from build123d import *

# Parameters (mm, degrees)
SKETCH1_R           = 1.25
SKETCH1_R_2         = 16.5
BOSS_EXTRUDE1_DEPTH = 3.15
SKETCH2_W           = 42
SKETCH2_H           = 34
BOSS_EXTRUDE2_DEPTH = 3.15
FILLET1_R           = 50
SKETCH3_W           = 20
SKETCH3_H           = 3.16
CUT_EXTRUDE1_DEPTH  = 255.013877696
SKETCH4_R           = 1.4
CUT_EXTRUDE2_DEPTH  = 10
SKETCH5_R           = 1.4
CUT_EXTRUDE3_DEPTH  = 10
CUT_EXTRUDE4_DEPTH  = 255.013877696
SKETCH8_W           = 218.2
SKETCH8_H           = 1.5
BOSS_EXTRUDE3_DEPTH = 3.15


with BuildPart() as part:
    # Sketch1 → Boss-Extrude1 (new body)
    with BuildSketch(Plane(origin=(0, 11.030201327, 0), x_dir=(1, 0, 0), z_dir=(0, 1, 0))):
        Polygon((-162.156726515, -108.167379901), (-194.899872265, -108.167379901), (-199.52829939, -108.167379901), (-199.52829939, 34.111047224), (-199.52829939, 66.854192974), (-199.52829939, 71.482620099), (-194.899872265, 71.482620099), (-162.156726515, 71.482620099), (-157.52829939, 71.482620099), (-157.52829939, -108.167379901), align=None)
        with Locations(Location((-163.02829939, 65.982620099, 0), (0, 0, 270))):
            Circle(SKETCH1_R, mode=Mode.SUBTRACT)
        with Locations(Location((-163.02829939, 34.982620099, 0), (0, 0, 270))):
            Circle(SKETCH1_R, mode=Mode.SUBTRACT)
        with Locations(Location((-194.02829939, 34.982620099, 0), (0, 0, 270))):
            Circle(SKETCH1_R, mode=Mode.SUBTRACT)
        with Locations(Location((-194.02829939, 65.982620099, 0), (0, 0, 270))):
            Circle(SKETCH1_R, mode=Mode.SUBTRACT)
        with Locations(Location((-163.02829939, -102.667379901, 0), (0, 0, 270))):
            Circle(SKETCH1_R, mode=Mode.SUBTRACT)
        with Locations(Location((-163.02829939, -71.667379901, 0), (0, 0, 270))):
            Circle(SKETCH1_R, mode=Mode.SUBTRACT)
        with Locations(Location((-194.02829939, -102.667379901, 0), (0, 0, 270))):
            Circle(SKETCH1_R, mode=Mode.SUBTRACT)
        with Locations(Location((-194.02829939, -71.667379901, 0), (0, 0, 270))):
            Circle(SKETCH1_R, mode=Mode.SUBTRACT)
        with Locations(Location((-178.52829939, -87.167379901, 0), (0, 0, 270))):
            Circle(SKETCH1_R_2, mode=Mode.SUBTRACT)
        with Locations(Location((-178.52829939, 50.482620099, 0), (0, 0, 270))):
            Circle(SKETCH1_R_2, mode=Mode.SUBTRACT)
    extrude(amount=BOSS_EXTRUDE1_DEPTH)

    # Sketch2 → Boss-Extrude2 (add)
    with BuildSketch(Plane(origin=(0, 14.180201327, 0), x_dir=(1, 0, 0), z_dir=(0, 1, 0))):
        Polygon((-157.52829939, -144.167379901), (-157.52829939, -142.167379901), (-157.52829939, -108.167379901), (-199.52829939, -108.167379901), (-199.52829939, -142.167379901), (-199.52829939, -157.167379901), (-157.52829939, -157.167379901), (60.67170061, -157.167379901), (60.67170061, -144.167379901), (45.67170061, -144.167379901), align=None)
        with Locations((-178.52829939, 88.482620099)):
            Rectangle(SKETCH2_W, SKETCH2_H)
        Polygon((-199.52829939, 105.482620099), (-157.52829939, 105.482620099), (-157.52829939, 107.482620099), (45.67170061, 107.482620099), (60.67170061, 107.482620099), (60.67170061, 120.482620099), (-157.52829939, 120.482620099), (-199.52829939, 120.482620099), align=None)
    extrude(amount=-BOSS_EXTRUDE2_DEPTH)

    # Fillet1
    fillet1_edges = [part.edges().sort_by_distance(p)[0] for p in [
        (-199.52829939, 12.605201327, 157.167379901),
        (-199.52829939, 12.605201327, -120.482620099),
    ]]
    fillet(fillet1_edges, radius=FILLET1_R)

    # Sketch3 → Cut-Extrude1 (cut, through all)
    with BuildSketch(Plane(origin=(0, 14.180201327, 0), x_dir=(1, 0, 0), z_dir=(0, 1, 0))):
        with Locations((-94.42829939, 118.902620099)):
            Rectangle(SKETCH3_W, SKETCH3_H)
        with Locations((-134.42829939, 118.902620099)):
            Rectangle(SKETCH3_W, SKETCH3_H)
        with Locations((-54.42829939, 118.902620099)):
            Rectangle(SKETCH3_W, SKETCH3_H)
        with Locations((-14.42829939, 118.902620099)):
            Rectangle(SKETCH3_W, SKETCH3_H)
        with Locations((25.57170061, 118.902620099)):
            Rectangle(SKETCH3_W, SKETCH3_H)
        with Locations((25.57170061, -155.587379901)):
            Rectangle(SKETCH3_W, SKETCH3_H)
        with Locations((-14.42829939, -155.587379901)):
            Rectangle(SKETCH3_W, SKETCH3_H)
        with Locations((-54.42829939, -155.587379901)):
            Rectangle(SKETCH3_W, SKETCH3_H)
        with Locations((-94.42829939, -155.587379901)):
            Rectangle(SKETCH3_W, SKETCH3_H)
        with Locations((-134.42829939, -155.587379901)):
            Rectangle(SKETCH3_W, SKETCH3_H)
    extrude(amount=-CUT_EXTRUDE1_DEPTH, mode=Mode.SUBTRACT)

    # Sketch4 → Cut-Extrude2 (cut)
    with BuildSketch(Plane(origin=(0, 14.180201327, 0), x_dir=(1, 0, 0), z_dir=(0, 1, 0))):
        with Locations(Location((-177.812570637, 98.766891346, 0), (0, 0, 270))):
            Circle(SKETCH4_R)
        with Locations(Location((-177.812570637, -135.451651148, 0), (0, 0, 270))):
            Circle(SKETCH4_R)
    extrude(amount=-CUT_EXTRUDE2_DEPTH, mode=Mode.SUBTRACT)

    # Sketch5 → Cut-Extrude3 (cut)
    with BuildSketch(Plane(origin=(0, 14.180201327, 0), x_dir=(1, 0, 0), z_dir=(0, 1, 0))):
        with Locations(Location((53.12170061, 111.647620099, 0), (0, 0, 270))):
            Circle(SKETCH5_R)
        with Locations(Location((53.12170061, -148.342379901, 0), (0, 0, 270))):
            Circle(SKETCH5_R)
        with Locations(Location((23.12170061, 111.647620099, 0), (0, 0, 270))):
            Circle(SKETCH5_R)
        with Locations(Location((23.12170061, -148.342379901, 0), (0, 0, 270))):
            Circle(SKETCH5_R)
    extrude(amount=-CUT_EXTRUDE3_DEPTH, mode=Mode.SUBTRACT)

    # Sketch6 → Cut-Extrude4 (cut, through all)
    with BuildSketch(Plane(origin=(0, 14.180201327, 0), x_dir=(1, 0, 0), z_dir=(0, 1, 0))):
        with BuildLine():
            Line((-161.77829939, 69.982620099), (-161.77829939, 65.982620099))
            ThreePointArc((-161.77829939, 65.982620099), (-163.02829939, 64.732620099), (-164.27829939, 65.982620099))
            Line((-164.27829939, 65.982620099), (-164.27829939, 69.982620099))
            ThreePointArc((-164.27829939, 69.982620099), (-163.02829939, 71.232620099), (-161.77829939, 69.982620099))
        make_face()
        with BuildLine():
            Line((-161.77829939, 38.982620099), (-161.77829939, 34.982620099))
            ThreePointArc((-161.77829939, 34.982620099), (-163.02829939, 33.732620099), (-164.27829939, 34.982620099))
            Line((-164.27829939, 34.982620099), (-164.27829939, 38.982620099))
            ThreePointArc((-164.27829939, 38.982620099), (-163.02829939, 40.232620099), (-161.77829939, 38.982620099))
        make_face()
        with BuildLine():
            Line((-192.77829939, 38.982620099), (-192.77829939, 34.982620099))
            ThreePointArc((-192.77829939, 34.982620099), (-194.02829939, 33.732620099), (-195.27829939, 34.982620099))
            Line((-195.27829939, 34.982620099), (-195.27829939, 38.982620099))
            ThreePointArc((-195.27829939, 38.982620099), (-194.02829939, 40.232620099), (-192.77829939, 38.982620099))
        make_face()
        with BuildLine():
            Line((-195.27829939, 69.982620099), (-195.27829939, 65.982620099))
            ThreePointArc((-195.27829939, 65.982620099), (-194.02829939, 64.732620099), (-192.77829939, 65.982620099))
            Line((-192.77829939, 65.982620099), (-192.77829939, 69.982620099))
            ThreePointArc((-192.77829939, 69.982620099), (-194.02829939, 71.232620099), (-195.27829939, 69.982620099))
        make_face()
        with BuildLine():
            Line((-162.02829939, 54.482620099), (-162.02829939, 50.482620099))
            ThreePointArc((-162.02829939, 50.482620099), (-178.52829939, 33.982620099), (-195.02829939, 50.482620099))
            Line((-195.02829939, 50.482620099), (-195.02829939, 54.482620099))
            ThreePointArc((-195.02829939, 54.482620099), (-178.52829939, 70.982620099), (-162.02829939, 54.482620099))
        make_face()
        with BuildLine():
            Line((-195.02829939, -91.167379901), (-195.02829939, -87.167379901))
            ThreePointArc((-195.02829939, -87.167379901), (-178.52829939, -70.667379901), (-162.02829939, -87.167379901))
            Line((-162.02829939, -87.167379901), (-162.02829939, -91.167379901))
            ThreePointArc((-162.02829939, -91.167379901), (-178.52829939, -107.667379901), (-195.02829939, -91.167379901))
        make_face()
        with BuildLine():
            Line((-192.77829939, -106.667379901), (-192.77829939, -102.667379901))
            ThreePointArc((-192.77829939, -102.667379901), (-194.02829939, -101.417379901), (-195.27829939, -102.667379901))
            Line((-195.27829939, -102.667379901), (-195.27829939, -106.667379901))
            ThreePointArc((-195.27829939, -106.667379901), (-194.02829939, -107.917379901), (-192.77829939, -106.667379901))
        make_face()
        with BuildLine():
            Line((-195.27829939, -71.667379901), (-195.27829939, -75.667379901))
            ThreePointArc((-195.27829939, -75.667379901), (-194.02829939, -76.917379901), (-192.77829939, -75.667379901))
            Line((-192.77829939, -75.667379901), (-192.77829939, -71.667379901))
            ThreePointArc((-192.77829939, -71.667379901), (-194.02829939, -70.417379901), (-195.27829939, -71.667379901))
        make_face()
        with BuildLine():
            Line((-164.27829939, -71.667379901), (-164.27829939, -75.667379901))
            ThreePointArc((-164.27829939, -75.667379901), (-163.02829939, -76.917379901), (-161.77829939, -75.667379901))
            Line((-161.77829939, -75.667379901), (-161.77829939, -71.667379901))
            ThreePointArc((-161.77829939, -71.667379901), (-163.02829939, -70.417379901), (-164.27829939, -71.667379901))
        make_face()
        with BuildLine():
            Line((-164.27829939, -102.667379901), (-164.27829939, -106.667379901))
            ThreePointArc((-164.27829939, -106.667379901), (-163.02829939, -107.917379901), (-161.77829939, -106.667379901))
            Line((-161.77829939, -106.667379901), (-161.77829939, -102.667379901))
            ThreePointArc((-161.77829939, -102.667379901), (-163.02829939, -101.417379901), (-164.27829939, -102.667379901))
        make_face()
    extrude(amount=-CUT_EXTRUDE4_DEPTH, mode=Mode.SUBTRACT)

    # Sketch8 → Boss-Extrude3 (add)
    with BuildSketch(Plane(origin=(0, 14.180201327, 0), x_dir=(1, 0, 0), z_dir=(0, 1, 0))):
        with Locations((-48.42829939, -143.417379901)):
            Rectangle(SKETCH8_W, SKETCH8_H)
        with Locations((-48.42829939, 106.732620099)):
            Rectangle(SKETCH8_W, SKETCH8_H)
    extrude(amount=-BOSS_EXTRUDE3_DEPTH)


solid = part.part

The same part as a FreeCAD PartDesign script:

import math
import FreeCAD as App
import Part
import Sketcher
from FreeCAD import Vector


def edges_at(feature, points):
    """Names of the edges that pass closest to the given points."""
    edges = feature.Shape.Edges
    near = lambda p: min(range(len(edges)), key=lambda i: edges[i].distToShape(Part.Vertex(*p))[0])
    return sorted({f"Edge{near(p) + 1}" for p in points})


def add_polygon(sketch, points):
    """Adds a closed chain of lines whose ends are joined by coincident constraints."""
    first, n = sketch.GeometryCount, len(points)
    for a, b in zip(points, points[1:] + points[:1]):
        sketch.addGeometry(Part.LineSegment(App.Vector(*a, 0), App.Vector(*b, 0)), False)
    for i in range(n):
        sketch.addConstraint(Sketcher.Constraint("Coincident", first + i, 2, first + (i + 1) % n, 1))

doc = App.newDocument("Part")
params = doc.addObject("Spreadsheet::Sheet", "Params")
for row, (alias, value) in enumerate([
    ("sketch1_diameter", "33 mm"),
    ("sketch1_diameter2", "2.5 mm"),
    ("sketch1_width", "42 mm"),
    ("sketch1_height", "179.65 mm"),
    ("pad1_length", "3.15 mm"),
    ("sketch2_width", "42 mm"),
    ("sketch2_height", "36 mm"),
    ("sketch2_height2", "49 mm"),
    ("sketch2_width2", "260.2 mm"),
    ("pad2_length", "3.15 mm"),
    ("fillet_radius", "50 mm"),
    ("sketch3_width", "20 mm"),
    ("sketch3_height", "3.16 mm"),
    ("sketch4_diameter", "2.8 mm"),
    ("pocket2_length", "10 mm"),
    ("sketch5_diameter", "2.8 mm"),
    ("pocket3_length", "10 mm"),
    ("sketch6_radius", "16.5 mm"),
    ("sketch6_height", "4 mm"),
    ("sketch6_radius2", "1.25 mm"),
    ("sketch7_width", "218.2 mm"),
    ("sketch7_height", "1.5 mm"),
    ("pad3_length", "3.15 mm"),
], start=1):
    params.set(f"A{row}", alias)
    params.set(f"B{row}", "=" + value)
    params.setAlias(f"B{row}", alias)

body = doc.addObject("PartDesign::Body", "Body")

sketch1 = body.newObject("Sketcher::SketchObject", "Sketch")
sketch1.AttachmentSupport = (doc.getObject("XZ_Plane"), [""])
sketch1.MapMode = "FlatFace"
sketch1.AttachmentOffset = App.Placement(Vector(0, 0, -11.030201), App.Rotation())
add_polygon(sketch1, [(-199.5, 108.2), (-157.5, 108.2), (-157.5, -71.5), (-199.5, -71.5)])
sketch1.addGeometry(Part.Circle(Vector(-163, 102.7, 0), Vector(0, 0, 1), 1.2), False)
sketch1.addGeometry(Part.Circle(Vector(-163, 71.7, 0), Vector(0, 0, 1), 1.2), False)
sketch1.addGeometry(Part.Circle(Vector(-178.5, 87.2, 0), Vector(0, 0, 1), 16.5), False)
sketch1.addGeometry(Part.Circle(Vector(-194, 102.7, 0), Vector(0, 0, 1), 1.2), False)
sketch1.addGeometry(Part.Circle(Vector(-194, 71.7, 0), Vector(0, 0, 1), 1.2), False)
sketch1.addGeometry(Part.Circle(Vector(-163, -35, 0), Vector(0, 0, 1), 1.2), False)
sketch1.addGeometry(Part.Circle(Vector(-163, -66, 0), Vector(0, 0, 1), 1.2), False)
sketch1.addGeometry(Part.Circle(Vector(-178.5, -50.5, 0), Vector(0, 0, 1), 16.5), False)
sketch1.addGeometry(Part.Circle(Vector(-194, -35, 0), Vector(0, 0, 1), 1.2), False)
sketch1.addGeometry(Part.Circle(Vector(-194, -66, 0), Vector(0, 0, 1), 1.2), False)
sketch1.addConstraint(Sketcher.Constraint("Horizontal", 0))
sketch1.addConstraint(Sketcher.Constraint("Vertical", 1))
sketch1.addConstraint(Sketcher.Constraint("Horizontal", 2))
sketch1.addConstraint(Sketcher.Constraint("Vertical", 3))
sketch1.addConstraint(Sketcher.Constraint("Equal", 4, 5))
sketch1.addConstraint(Sketcher.Constraint("Equal", 5, 7))
sketch1.addConstraint(Sketcher.Constraint("Equal", 7, 8))
sketch1.addConstraint(Sketcher.Constraint("Equal", 8, 9))
sketch1.addConstraint(Sketcher.Constraint("Equal", 9, 10))
sketch1.addConstraint(Sketcher.Constraint("Equal", 6, 11))
sketch1.addConstraint(Sketcher.Constraint("Equal", 10, 12))
sketch1.addConstraint(Sketcher.Constraint("Equal", 12, 13))
sketch1.addConstraint(Sketcher.Constraint("Horizontal", 4, 3, 7, 3))
sketch1.addConstraint(Sketcher.Constraint("Horizontal", 5, 3, 8, 3))
sketch1.addConstraint(Sketcher.Constraint("Horizontal", 9, 3, 12, 3))
sketch1.addConstraint(Sketcher.Constraint("Horizontal", 10, 3, 13, 3))
sketch1.addConstraint(Sketcher.Constraint("Vertical", 4, 3, 5, 3))
sketch1.addConstraint(Sketcher.Constraint("Vertical", 7, 3, 8, 3))
sketch1.addConstraint(Sketcher.Constraint("Vertical", 5, 3, 9, 3))
sketch1.addConstraint(Sketcher.Constraint("Vertical", 9, 3, 10, 3))
sketch1.addConstraint(Sketcher.Constraint("Vertical", 6, 3, 11, 3))
sketch1.addConstraint(Sketcher.Constraint("Vertical", 8, 3, 12, 3))
sketch1.addConstraint(Sketcher.Constraint("Vertical", 12, 3, 13, 3))
sketch1.addConstraint(Sketcher.Constraint("Diameter", 6, 33.0))
sketch1.addConstraint(Sketcher.Constraint("Diameter", 4, 2.5))
sketch1.addConstraint(Sketcher.Constraint("DistanceX", 0, 1, 0, 2, 42.0))
sketch1.addConstraint(Sketcher.Constraint("DistanceY", 5, 3, 4, 3, 31.0))
sketch1.addConstraint(Sketcher.Constraint("DistanceX", 7, 3, 4, 3, 31.0))
sketch1.addConstraint(Sketcher.Constraint("DistanceY", 10, 3, 9, 3, 31.0))
sketch1.addConstraint(Sketcher.Constraint("DistanceX", 6, 3, 0, 2, 21.0))
sketch1.addConstraint(Sketcher.Constraint("DistanceY", 6, 3, 0, 2, 21.0))
sketch1.addConstraint(Sketcher.Constraint("DistanceY", 1, 2, 11, 3, 21.0))
sketch1.addConstraint(Sketcher.Constraint("DistanceY", 1, 2, 1, 1, 179.65))
sketch1.addConstraint(Sketcher.Constraint("DistanceX", 6, 3, 4, 3, 15.5))
sketch1.addConstraint(Sketcher.Constraint("DistanceY", 6, 3, 4, 3, 15.5))
sketch1.addConstraint(Sketcher.Constraint("DistanceY", 11, 3, 9, 3, 15.5))
sketch1.addConstraint(Sketcher.Constraint("DistanceX", 4, 3, -1, 1, 163.028299))
sketch1.addConstraint(Sketcher.Constraint("DistanceY", -1, 1, 4, 3, 102.66738))
sketch1.setExpression("Constraints[27]", "Params.sketch1_diameter")
sketch1.setExpression("Constraints[28]", "Params.sketch1_diameter2")
sketch1.setExpression("Constraints[29]", "Params.sketch1_width")
sketch1.setExpression("Constraints[36]", "Params.sketch1_height")
pad1 = body.newObject("PartDesign::Pad", "Pad")
pad1.Profile = sketch1
pad1.setExpression("Length", "Params.pad1_length")
pad1.Reversed = True

sketch2 = body.newObject("Sketcher::SketchObject", "Sketch001")
sketch2.AttachmentSupport = (doc.getObject("XZ_Plane"), [""])
sketch2.MapMode = "FlatFace"
sketch2.AttachmentOffset = App.Placement(Vector(0, 0, -14.180201), App.Rotation())
add_polygon(sketch2, [(-158, 144), (-158, 108), (-200, 108), (-200, 157), (61, 157), (61, 144)])
add_polygon(sketch2, [(-200, -71), (-158, -71), (-158, -107), (61, -107), (61, -120), (-200, -120)])
sketch2.addConstraint(Sketcher.Constraint("Vertical", 0))
sketch2.addConstraint(Sketcher.Constraint("Horizontal", 1))
sketch2.addConstraint(Sketcher.Constraint("Vertical", 2))
sketch2.addConstraint(Sketcher.Constraint("Horizontal", 3))
sketch2.addConstraint(Sketcher.Constraint("Vertical", 4))
sketch2.addConstraint(Sketcher.Constraint("Horizontal", 5))
sketch2.addConstraint(Sketcher.Constraint("Horizontal", 6))
sketch2.addConstraint(Sketcher.Constraint("Vertical", 7))
sketch2.addConstraint(Sketcher.Constraint("Horizontal", 8))
sketch2.addConstraint(Sketcher.Constraint("Vertical", 9))
sketch2.addConstraint(Sketcher.Constraint("Horizontal", 10))
sketch2.addConstraint(Sketcher.Constraint("Vertical", 11))
sketch2.addConstraint(Sketcher.Constraint("Vertical", 5, 2, 6, 2))
sketch2.addConstraint(Sketcher.Constraint("Vertical", 4, 2, 8, 2))
sketch2.addConstraint(Sketcher.Constraint("Vertical", 2, 2, 10, 2))
sketch2.addConstraint(Sketcher.Constraint("Equal", 0, 7))
sketch2.addConstraint(Sketcher.Constraint("Equal", 4, 9))
sketch2.addConstraint(Sketcher.Constraint("DistanceX", 1, 2, 1, 1, 42.0))
sketch2.addConstraint(Sketcher.Constraint("DistanceY", 0, 2, 0, 1, 36.0))
sketch2.addConstraint(Sketcher.Constraint("DistanceY", 2, 1, 2, 2, 49.0))
sketch2.addConstraint(Sketcher.Constraint("DistanceX", 3, 1, 3, 2, 260.2))
sketch2.addConstraint(Sketcher.Constraint("DistanceY", 6, 2, 0, 2, 179.65))
sketch2.addConstraint(Sketcher.Constraint("DistanceX", 0, 2, -1, 1, 157.528299))
sketch2.addConstraint(Sketcher.Constraint("DistanceY", -1, 1, 0, 2, 108.16738))
sketch2.setExpression("Constraints[29]", "Params.sketch2_width")
sketch2.setExpression("Constraints[30]", "Params.sketch2_height")
sketch2.setExpression("Constraints[31]", "Params.sketch2_height2")
sketch2.setExpression("Constraints[32]", "Params.sketch2_width2")
pad2 = body.newObject("PartDesign::Pad", "Pad001")
pad2.Profile = sketch2
pad2.setExpression("Length", "Params.pad2_length")
doc.recompute()

fillet = body.newObject("PartDesign::Fillet", "Fillet")
fillet.Base = (pad2, edges_at(pad2, [(-199.528, 12.605, 157.167), (-199.528, 12.605, -120.483)]))
fillet.setExpression("Radius", "Params.fillet_radius")

sketch3 = body.newObject("Sketcher::SketchObject", "Sketch002")
sketch3.AttachmentSupport = (doc.getObject("XZ_Plane"), [""])
sketch3.MapMode = "FlatFace"
sketch3.AttachmentOffset = App.Placement(Vector(0, 0, -14.180201), App.Rotation())
add_polygon(sketch3, [(-104.4, -120.5), (-104.4, -117.3), (-84.4, -117.3), (-84.4, -120.5)])
add_polygon(sketch3, [(-144.4, -120.5), (-144.4, -117.3), (-124.4, -117.3), (-124.4, -120.5)])
add_polygon(sketch3, [(-64.4, -120.5), (-64.4, -117.3), (-44.4, -117.3), (-44.4, -120.5)])
add_polygon(sketch3, [(-24.4, -120.5), (-24.4, -117.3), (-4.4, -117.3), (-4.4, -120.5)])
add_polygon(sketch3, [(15.6, -120.5), (15.6, -117.3), (35.6, -117.3), (35.6, -120.5)])
add_polygon(sketch3, [(15.6, 154), (15.6, 157.2), (35.6, 157.2), (35.6, 154)])
add_polygon(sketch3, [(-24.4, 154), (-24.4, 157.2), (-4.4, 157.2), (-4.4, 154)])
add_polygon(sketch3, [(-64.4, 154), (-64.4, 157.2), (-44.4, 157.2), (-44.4, 154)])
add_polygon(sketch3, [(-104.4, 154), (-104.4, 157.2), (-84.4, 157.2), (-84.4, 154)])
add_polygon(sketch3, [(-144.4, 154), (-144.4, 157.2), (-124.4, 157.2), (-124.4, 154)])
sketch3.addConstraint(Sketcher.Constraint("Vertical", 0))
sketch3.addConstraint(Sketcher.Constraint("Horizontal", 1))
sketch3.addConstraint(Sketcher.Constraint("Vertical", 2))
sketch3.addConstraint(Sketcher.Constraint("Horizontal", 3))
sketch3.addConstraint(Sketcher.Constraint("Vertical", 4))
sketch3.addConstraint(Sketcher.Constraint("Horizontal", 5))
sketch3.addConstraint(Sketcher.Constraint("Vertical", 6))
sketch3.addConstraint(Sketcher.Constraint("Horizontal", 7))
sketch3.addConstraint(Sketcher.Constraint("Vertical", 8))
sketch3.addConstraint(Sketcher.Constraint("Horizontal", 9))
sketch3.addConstraint(Sketcher.Constraint("Vertical", 10))
sketch3.addConstraint(Sketcher.Constraint("Horizontal", 11))
sketch3.addConstraint(Sketcher.Constraint("Vertical", 12))
sketch3.addConstraint(Sketcher.Constraint("Horizontal", 13))
sketch3.addConstraint(Sketcher.Constraint("Vertical", 14))
sketch3.addConstraint(Sketcher.Constraint("Horizontal", 15))
sketch3.addConstraint(Sketcher.Constraint("Vertical", 16))
sketch3.addConstraint(Sketcher.Constraint("Horizontal", 17))
sketch3.addConstraint(Sketcher.Constraint("Vertical", 18))
sketch3.addConstraint(Sketcher.Constraint("Horizontal", 19))
sketch3.addConstraint(Sketcher.Constraint("Vertical", 20))
sketch3.addConstraint(Sketcher.Constraint("Horizontal", 21))
sketch3.addConstraint(Sketcher.Constraint("Vertical", 22))
sketch3.addConstraint(Sketcher.Constraint("Horizontal", 23))
sketch3.addConstraint(Sketcher.Constraint("Vertical", 24))
sketch3.addConstraint(Sketcher.Constraint("Horizontal", 25))
sketch3.addConstraint(Sketcher.Constraint("Vertical", 26))
sketch3.addConstraint(Sketcher.Constraint("Horizontal", 27))
sketch3.addConstraint(Sketcher.Constraint("Vertical", 28))
sketch3.addConstraint(Sketcher.Constraint("Horizontal", 29))
sketch3.addConstraint(Sketcher.Constraint("Vertical", 30))
sketch3.addConstraint(Sketcher.Constraint("Horizontal", 31))
sketch3.addConstraint(Sketcher.Constraint("Vertical", 32))
sketch3.addConstraint(Sketcher.Constraint("Horizontal", 33))
sketch3.addConstraint(Sketcher.Constraint("Vertical", 34))
sketch3.addConstraint(Sketcher.Constraint("Horizontal", 35))
sketch3.addConstraint(Sketcher.Constraint("Vertical", 36))
sketch3.addConstraint(Sketcher.Constraint("Horizontal", 37))
sketch3.addConstraint(Sketcher.Constraint("Vertical", 38))
sketch3.addConstraint(Sketcher.Constraint("Horizontal", 39))
sketch3.addConstraint(Sketcher.Constraint("Horizontal", 1, 2, 4, 2))
sketch3.addConstraint(Sketcher.Constraint("Horizontal", 3, 2, 6, 2))
sketch3.addConstraint(Sketcher.Constraint("Horizontal", 5, 2, 8, 2))
sketch3.addConstraint(Sketcher.Constraint("Horizontal", 7, 2, 10, 2))
sketch3.addConstraint(Sketcher.Constraint("Horizontal", 9, 2, 12, 2))
sketch3.addConstraint(Sketcher.Constraint("Horizontal", 11, 2, 14, 2))
sketch3.addConstraint(Sketcher.Constraint("Horizontal", 13, 2, 16, 2))
sketch3.addConstraint(Sketcher.Constraint("Horizontal", 15, 2, 18, 2))
sketch3.addConstraint(Sketcher.Constraint("Horizontal", 21, 2, 24, 2))
sketch3.addConstraint(Sketcher.Constraint("Horizontal", 23, 2, 26, 2))
sketch3.addConstraint(Sketcher.Constraint("Horizontal", 25, 2, 28, 2))
sketch3.addConstraint(Sketcher.Constraint("Horizontal", 27, 2, 30, 2))
sketch3.addConstraint(Sketcher.Constraint("Horizontal", 29, 2, 32, 2))
sketch3.addConstraint(Sketcher.Constraint("Horizontal", 31, 2, 34, 2))
sketch3.addConstraint(Sketcher.Constraint("Horizontal", 33, 2, 36, 2))
sketch3.addConstraint(Sketcher.Constraint("Horizontal", 35, 2, 38, 2))
sketch3.addConstraint(Sketcher.Constraint("Vertical", 19, 2, 20, 2))
sketch3.addConstraint(Sketcher.Constraint("Vertical", 18, 2, 21, 2))
sketch3.addConstraint(Sketcher.Constraint("Vertical", 15, 2, 24, 2))
sketch3.addConstraint(Sketcher.Constraint("Vertical", 14, 2, 25, 2))
sketch3.addConstraint(Sketcher.Constraint("Vertical", 11, 2, 28, 2))
sketch3.addConstraint(Sketcher.Constraint("Vertical", 10, 2, 29, 2))
sketch3.addConstraint(Sketcher.Constraint("Vertical", 3, 2, 32, 2))
sketch3.addConstraint(Sketcher.Constraint("Vertical", 2, 2, 33, 2))
sketch3.addConstraint(Sketcher.Constraint("Vertical", 7, 2, 36, 2))
sketch3.addConstraint(Sketcher.Constraint("Vertical", 6, 2, 37, 2))
sketch3.addConstraint(Sketcher.Constraint("Equal", 3, 5))
sketch3.addConstraint(Sketcher.Constraint("Equal", 7, 9))
sketch3.addConstraint(Sketcher.Constraint("Equal", 11, 13))
sketch3.addConstraint(Sketcher.Constraint("Equal", 15, 17))
sketch3.addConstraint(Sketcher.Constraint("Equal", 18, 20))
sketch3.addConstraint(Sketcher.Constraint("DistanceX", 1, 1, 1, 2, 20.0))
sketch3.addConstraint(Sketcher.Constraint("DistanceX", 4, 2, 0, 2, 40.0))
sketch3.addConstraint(Sketcher.Constraint("DistanceX", 1, 2, 8, 2, 20.0))
sketch3.addConstraint(Sketcher.Constraint("DistanceX", 9, 2, 12, 2, 20.0))
sketch3.addConstraint(Sketcher.Constraint("DistanceX", 13, 2, 16, 2, 20.0))
sketch3.addConstraint(Sketcher.Constraint("DistanceY", 0, 1, 0, 2, 3.16))
sketch3.addConstraint(Sketcher.Constraint("DistanceY", 16, 2, 20, 2, 274.49))
sketch3.addConstraint(Sketcher.Constraint("DistanceX", 0, 2, -1, 1, 104.428299))
sketch3.addConstraint(Sketcher.Constraint("DistanceY", 0, 2, -1, 1, 117.32262))
sketch3.setExpression("Constraints[111]", "Params.sketch3_width")
sketch3.setExpression("Constraints[116]", "Params.sketch3_height")
pocket1 = body.newObject("PartDesign::Pocket", "Pocket")
pocket1.Profile = sketch3
pocket1.Type = "ThroughAll"
pocket1.Reversed = True

sketch4 = body.newObject("Sketcher::SketchObject", "Sketch003")
sketch4.AttachmentSupport = (doc.getObject("XZ_Plane"), [""])
sketch4.MapMode = "FlatFace"
sketch4.AttachmentOffset = App.Placement(Vector(0, 0, -14.180201), App.Rotation())
sketch4.addGeometry(Part.Circle(Vector(-177.8, -98.8, 0), Vector(0, 0, 1), 1.4), False)
sketch4.addGeometry(Part.Circle(Vector(-177.8, 135.5, 0), Vector(0, 0, 1), 1.4), False)
sketch4.addConstraint(Sketcher.Constraint("Equal", 0, 1))
sketch4.addConstraint(Sketcher.Constraint("Vertical", 0, 3, 1, 3))
sketch4.addConstraint(Sketcher.Constraint("Diameter", 0, 2.8))
sketch4.addConstraint(Sketcher.Constraint("DistanceX", 0, 3, -1, 1, 177.812571))
sketch4.addConstraint(Sketcher.Constraint("DistanceY", 0, 3, -1, 1, 98.766891))
sketch4.addConstraint(Sketcher.Constraint("DistanceY", -1, 1, 1, 3, 135.451651))
sketch4.setExpression("Constraints[2]", "Params.sketch4_diameter")
pocket2 = body.newObject("PartDesign::Pocket", "Pocket001")
pocket2.Profile = sketch4
pocket2.setExpression("Length", "Params.pocket2_length")
pocket2.Reversed = True

sketch5 = body.newObject("Sketcher::SketchObject", "Sketch004")
sketch5.AttachmentSupport = (doc.getObject("XZ_Plane"), [""])
sketch5.MapMode = "FlatFace"
sketch5.AttachmentOffset = App.Placement(Vector(0, 0, -14.180201), App.Rotation())
sketch5.addGeometry(Part.Circle(Vector(53.1, -111.6, 0), Vector(0, 0, 1), 1.4), False)
sketch5.addGeometry(Part.Circle(Vector(53.1, 148.3, 0), Vector(0, 0, 1), 1.4), False)
sketch5.addGeometry(Part.Circle(Vector(23.1, -111.6, 0), Vector(0, 0, 1), 1.4), False)
sketch5.addGeometry(Part.Circle(Vector(23.1, 148.3, 0), Vector(0, 0, 1), 1.4), False)
sketch5.addConstraint(Sketcher.Constraint("Equal", 0, 1))
sketch5.addConstraint(Sketcher.Constraint("Equal", 1, 2))
sketch5.addConstraint(Sketcher.Constraint("Equal", 2, 3))
sketch5.addConstraint(Sketcher.Constraint("Horizontal", 0, 3, 2, 3))
sketch5.addConstraint(Sketcher.Constraint("Horizontal", 1, 3, 3, 3))
sketch5.addConstraint(Sketcher.Constraint("Vertical", 0, 3, 1, 3))
sketch5.addConstraint(Sketcher.Constraint("Vertical", 2, 3, 3, 3))
sketch5.addConstraint(Sketcher.Constraint("Diameter", 0, 2.8))
sketch5.addConstraint(Sketcher.Constraint("DistanceX", 2, 3, 0, 3, 30.0))
sketch5.addConstraint(Sketcher.Constraint("DistanceY", 0, 3, 1, 3, 259.99))
sketch5.addConstraint(Sketcher.Constraint("DistanceX", -1, 1, 0, 3, 53.121701))
sketch5.addConstraint(Sketcher.Constraint("DistanceY", 0, 3, -1, 1, 111.64762))
sketch5.setExpression("Constraints[7]", "Params.sketch5_diameter")
pocket3 = body.newObject("PartDesign::Pocket", "Pocket002")
pocket3.Profile = sketch5
pocket3.setExpression("Length", "Params.pocket3_length")
pocket3.Reversed = True

sketch6 = body.newObject("Sketcher::SketchObject", "Sketch005")
sketch6.AttachmentSupport = (doc.getObject("XZ_Plane"), [""])
sketch6.MapMode = "FlatFace"
sketch6.AttachmentOffset = App.Placement(Vector(0, 0, -14.180201), App.Rotation())
sketch6.addGeometry(Part.LineSegment(Vector(-161.8, -66, 0), Vector(-161.8, -70, 0)), False)
sketch6.addGeometry(Part.ArcOfCircle(Part.Circle(Vector(-163, -70, 0), Vector(0, 0, 1), 1.2), math.radians(180), math.radians(360)), False)
sketch6.addGeometry(Part.LineSegment(Vector(-164.3, -70, 0), Vector(-164.3, -66, 0)), False)
sketch6.addGeometry(Part.ArcOfCircle(Part.Circle(Vector(-163, -66, 0), Vector(0, 0, 1), 1.2), math.radians(0), math.radians(180)), False)
sketch6.addGeometry(Part.LineSegment(Vector(-161.8, -35, 0), Vector(-161.8, -39, 0)), False)
sketch6.addGeometry(Part.ArcOfCircle(Part.Circle(Vector(-163, -39, 0), Vector(0, 0, 1), 1.2), math.radians(180), math.radians(360)), False)
sketch6.addGeometry(Part.LineSegment(Vector(-164.3, -39, 0), Vector(-164.3, -35, 0)), False)
sketch6.addGeometry(Part.ArcOfCircle(Part.Circle(Vector(-163, -35, 0), Vector(0, 0, 1), 1.2), math.radians(0), math.radians(180)), False)
sketch6.addGeometry(Part.LineSegment(Vector(-192.8, -35, 0), Vector(-192.8, -39, 0)), False)
sketch6.addGeometry(Part.ArcOfCircle(Part.Circle(Vector(-194, -39, 0), Vector(0, 0, 1), 1.2), math.radians(180), math.radians(360)), False)
sketch6.addGeometry(Part.LineSegment(Vector(-195.3, -39, 0), Vector(-195.3, -35, 0)), False)
sketch6.addGeometry(Part.ArcOfCircle(Part.Circle(Vector(-194, -35, 0), Vector(0, 0, 1), 1.2), math.radians(0), math.radians(180)), False)
sketch6.addGeometry(Part.LineSegment(Vector(-195.3, -70, 0), Vector(-195.3, -66, 0)), False)
sketch6.addGeometry(Part.ArcOfCircle(Part.Circle(Vector(-194, -66, 0), Vector(0, 0, 1), 1.2), math.radians(0), math.radians(180)), False)
sketch6.addGeometry(Part.LineSegment(Vector(-192.8, -66, 0), Vector(-192.8, -70, 0)), False)
sketch6.addGeometry(Part.ArcOfCircle(Part.Circle(Vector(-194, -70, 0), Vector(0, 0, 1), 1.2), math.radians(180), math.radians(360)), False)
sketch6.addGeometry(Part.LineSegment(Vector(-162, -50.5, 0), Vector(-162, -54.5, 0)), False)
sketch6.addGeometry(Part.ArcOfCircle(Part.Circle(Vector(-178.5, -54.5, 0), Vector(0, 0, 1), 16.5), math.radians(180), math.radians(360)), False)
sketch6.addGeometry(Part.LineSegment(Vector(-195, -54.5, 0), Vector(-195, -50.5, 0)), False)
sketch6.addGeometry(Part.ArcOfCircle(Part.Circle(Vector(-178.5, -50.5, 0), Vector(0, 0, 1), 16.5), math.radians(0), math.radians(180)), False)
sketch6.addGeometry(Part.LineSegment(Vector(-195, 87.2, 0), Vector(-195, 91.2, 0)), False)
sketch6.addGeometry(Part.ArcOfCircle(Part.Circle(Vector(-178.5, 91.2, 0), Vector(0, 0, 1), 16.5), math.radians(0), math.radians(180)), False)
sketch6.addGeometry(Part.LineSegment(Vector(-162, 91.2, 0), Vector(-162, 87.2, 0)), False)
sketch6.addGeometry(Part.ArcOfCircle(Part.Circle(Vector(-178.5, 87.2, 0), Vector(0, 0, 1), 16.5), math.radians(180), math.radians(360)), False)
sketch6.addGeometry(Part.LineSegment(Vector(-192.8, 106.7, 0), Vector(-192.8, 102.7, 0)), False)
sketch6.addGeometry(Part.ArcOfCircle(Part.Circle(Vector(-194, 102.7, 0), Vector(0, 0, 1), 1.2), math.radians(180), math.radians(360)), False)
sketch6.addGeometry(Part.LineSegment(Vector(-195.3, 102.7, 0), Vector(-195.3, 106.7, 0)), False)
sketch6.addGeometry(Part.ArcOfCircle(Part.Circle(Vector(-194, 106.7, 0), Vector(0, 0, 1), 1.2), math.radians(0), math.radians(180)), False)
sketch6.addGeometry(Part.LineSegment(Vector(-195.3, 71.7, 0), Vector(-195.3, 75.7, 0)), False)
sketch6.addGeometry(Part.ArcOfCircle(Part.Circle(Vector(-194, 75.7, 0), Vector(0, 0, 1), 1.2), math.radians(0), math.radians(180)), False)
sketch6.addGeometry(Part.LineSegment(Vector(-192.8, 75.7, 0), Vector(-192.8, 71.7, 0)), False)
sketch6.addGeometry(Part.ArcOfCircle(Part.Circle(Vector(-194, 71.7, 0), Vector(0, 0, 1), 1.2), math.radians(180), math.radians(360)), False)
sketch6.addGeometry(Part.LineSegment(Vector(-164.3, 71.7, 0), Vector(-164.3, 75.7, 0)), False)
sketch6.addGeometry(Part.ArcOfCircle(Part.Circle(Vector(-163, 75.7, 0), Vector(0, 0, 1), 1.2), math.radians(0), math.radians(180)), False)
sketch6.addGeometry(Part.LineSegment(Vector(-161.8, 75.7, 0), Vector(-161.8, 71.7, 0)), False)
sketch6.addGeometry(Part.ArcOfCircle(Part.Circle(Vector(-163, 71.7, 0), Vector(0, 0, 1), 1.2), math.radians(180), math.radians(360)), False)
sketch6.addGeometry(Part.LineSegment(Vector(-164.3, 102.7, 0), Vector(-164.3, 106.7, 0)), False)
sketch6.addGeometry(Part.ArcOfCircle(Part.Circle(Vector(-163, 106.7, 0), Vector(0, 0, 1), 1.2), math.radians(0), math.radians(180)), False)
sketch6.addGeometry(Part.LineSegment(Vector(-161.8, 106.7, 0), Vector(-161.8, 102.7, 0)), False)
sketch6.addGeometry(Part.ArcOfCircle(Part.Circle(Vector(-163, 102.7, 0), Vector(0, 0, 1), 1.2), math.radians(180), math.radians(360)), False)
sketch6.addConstraint(Sketcher.Constraint("Tangent", 0, 2, 1, 2))
sketch6.addConstraint(Sketcher.Constraint("Tangent", 1, 1, 2, 1))
sketch6.addConstraint(Sketcher.Constraint("Tangent", 2, 2, 3, 2))
sketch6.addConstraint(Sketcher.Constraint("Tangent", 3, 1, 0, 1))
sketch6.addConstraint(Sketcher.Constraint("Tangent", 4, 2, 5, 2))
sketch6.addConstraint(Sketcher.Constraint("Tangent", 5, 1, 6, 1))
sketch6.addConstraint(Sketcher.Constraint("Tangent", 6, 2, 7, 2))
sketch6.addConstraint(Sketcher.Constraint("Tangent", 7, 1, 4, 1))
sketch6.addConstraint(Sketcher.Constraint("Tangent", 8, 2, 9, 2))
sketch6.addConstraint(Sketcher.Constraint("Tangent", 9, 1, 10, 1))
sketch6.addConstraint(Sketcher.Constraint("Tangent", 10, 2, 11, 2))
sketch6.addConstraint(Sketcher.Constraint("Tangent", 11, 1, 8, 1))
sketch6.addConstraint(Sketcher.Constraint("Tangent", 12, 2, 13, 2))
sketch6.addConstraint(Sketcher.Constraint("Tangent", 13, 1, 14, 1))
sketch6.addConstraint(Sketcher.Constraint("Tangent", 14, 2, 15, 2))
sketch6.addConstraint(Sketcher.Constraint("Tangent", 15, 1, 12, 1))
sketch6.addConstraint(Sketcher.Constraint("Tangent", 16, 2, 17, 2))
sketch6.addConstraint(Sketcher.Constraint("Tangent", 17, 1, 18, 1))
sketch6.addConstraint(Sketcher.Constraint("Tangent", 18, 2, 19, 2))
sketch6.addConstraint(Sketcher.Constraint("Tangent", 19, 1, 16, 1))
sketch6.addConstraint(Sketcher.Constraint("Tangent", 20, 2, 21, 2))
sketch6.addConstraint(Sketcher.Constraint("Tangent", 21, 1, 22, 1))
sketch6.addConstraint(Sketcher.Constraint("Tangent", 22, 2, 23, 2))
sketch6.addConstraint(Sketcher.Constraint("Tangent", 23, 1, 20, 1))
sketch6.addConstraint(Sketcher.Constraint("Tangent", 24, 2, 25, 2))
sketch6.addConstraint(Sketcher.Constraint("Tangent", 25, 1, 26, 1))
sketch6.addConstraint(Sketcher.Constraint("Tangent", 26, 2, 27, 2))
sketch6.addConstraint(Sketcher.Constraint("Tangent", 27, 1, 24, 1))
sketch6.addConstraint(Sketcher.Constraint("Tangent", 28, 2, 29, 2))
sketch6.addConstraint(Sketcher.Constraint("Tangent", 29, 1, 30, 1))
sketch6.addConstraint(Sketcher.Constraint("Tangent", 30, 2, 31, 2))
sketch6.addConstraint(Sketcher.Constraint("Tangent", 31, 1, 28, 1))
sketch6.addConstraint(Sketcher.Constraint("Tangent", 32, 2, 33, 2))
sketch6.addConstraint(Sketcher.Constraint("Tangent", 33, 1, 34, 1))
sketch6.addConstraint(Sketcher.Constraint("Tangent", 34, 2, 35, 2))
sketch6.addConstraint(Sketcher.Constraint("Tangent", 35, 1, 32, 1))
sketch6.addConstraint(Sketcher.Constraint("Tangent", 36, 2, 37, 2))
sketch6.addConstraint(Sketcher.Constraint("Tangent", 37, 1, 38, 1))
sketch6.addConstraint(Sketcher.Constraint("Tangent", 38, 2, 39, 2))
sketch6.addConstraint(Sketcher.Constraint("Tangent", 39, 1, 36, 1))
sketch6.addConstraint(Sketcher.Constraint("Vertical", 0))
sketch6.addConstraint(Sketcher.Constraint("Vertical", 2))
sketch6.addConstraint(Sketcher.Constraint("Vertical", 4))
sketch6.addConstraint(Sketcher.Constraint("Vertical", 6))
sketch6.addConstraint(Sketcher.Constraint("Vertical", 8))
sketch6.addConstraint(Sketcher.Constraint("Vertical", 10))
sketch6.addConstraint(Sketcher.Constraint("Vertical", 12))
sketch6.addConstraint(Sketcher.Constraint("Vertical", 14))
sketch6.addConstraint(Sketcher.Constraint("Vertical", 16))
sketch6.addConstraint(Sketcher.Constraint("Vertical", 18))
sketch6.addConstraint(Sketcher.Constraint("Vertical", 20))
sketch6.addConstraint(Sketcher.Constraint("Vertical", 22))
sketch6.addConstraint(Sketcher.Constraint("Vertical", 24))
sketch6.addConstraint(Sketcher.Constraint("Vertical", 26))
sketch6.addConstraint(Sketcher.Constraint("Vertical", 28))
sketch6.addConstraint(Sketcher.Constraint("Vertical", 30))
sketch6.addConstraint(Sketcher.Constraint("Vertical", 32))
sketch6.addConstraint(Sketcher.Constraint("Vertical", 34))
sketch6.addConstraint(Sketcher.Constraint("Vertical", 36))
sketch6.addConstraint(Sketcher.Constraint("Vertical", 38))
sketch6.addConstraint(Sketcher.Constraint("Equal", 3, 5))
sketch6.addConstraint(Sketcher.Constraint("Equal", 7, 9))
sketch6.addConstraint(Sketcher.Constraint("Equal", 11, 13))
sketch6.addConstraint(Sketcher.Constraint("Equal", 19, 21))
sketch6.addConstraint(Sketcher.Constraint("Equal", 15, 25))
sketch6.addConstraint(Sketcher.Constraint("Equal", 27, 29))
sketch6.addConstraint(Sketcher.Constraint("Equal", 31, 33))
sketch6.addConstraint(Sketcher.Constraint("Equal", 35, 37))
sketch6.addConstraint(Sketcher.Constraint("Horizontal", 5, 3, 9, 3))
sketch6.addConstraint(Sketcher.Constraint("Horizontal", 7, 3, 11, 3))
sketch6.addConstraint(Sketcher.Constraint("Horizontal", 3, 3, 13, 3))
sketch6.addConstraint(Sketcher.Constraint("Horizontal", 1, 3, 15, 3))
sketch6.addConstraint(Sketcher.Constraint("Horizontal", 29, 3, 33, 3))
sketch6.addConstraint(Sketcher.Constraint("Horizontal", 31, 3, 35, 3))
sketch6.addConstraint(Sketcher.Constraint("Horizontal", 27, 3, 37, 3))
sketch6.addConstraint(Sketcher.Constraint("Horizontal", 25, 3, 39, 3))
sketch6.addConstraint(Sketcher.Constraint("Vertical", 3, 3, 5, 3))
sketch6.addConstraint(Sketcher.Constraint("Vertical", 11, 3, 13, 3))
sketch6.addConstraint(Sketcher.Constraint("Vertical", 19, 3, 21, 3))
sketch6.addConstraint(Sketcher.Constraint("Vertical", 15, 3, 25, 3))
sketch6.addConstraint(Sketcher.Constraint("Vertical", 27, 3, 29, 3))
sketch6.addConstraint(Sketcher.Constraint("Vertical", 7, 3, 33, 3))
sketch6.addConstraint(Sketcher.Constraint("Vertical", 35, 3, 37, 3))
sketch6.addConstraint(Sketcher.Constraint("Equal", 2, 4))
sketch6.addConstraint(Sketcher.Constraint("Equal", 14, 16))
sketch6.addConstraint(Sketcher.Constraint("Equal", 18, 20))
sketch6.addConstraint(Sketcher.Constraint("Equal", 22, 24))
sketch6.addConstraint(Sketcher.Constraint("Equal", 26, 28))
sketch6.addConstraint(Sketcher.Constraint("Radius", 17, 16.5))
sketch6.addConstraint(Sketcher.Constraint("DistanceY", 0, 2, 0, 1, 4.0))
sketch6.addConstraint(Sketcher.Constraint("Radius", 1, 1.25))
sketch6.addConstraint(Sketcher.Constraint("DistanceY", 3, 3, 5, 3, 27.0))
sketch6.addConstraint(Sketcher.Constraint("DistanceX", 9, 3, 5, 3, 31.0))
sketch6.addConstraint(Sketcher.Constraint("DistanceY", 29, 3, 25, 3, 27.0))
sketch6.addConstraint(Sketcher.Constraint("DistanceX", 3, 3, 16, 2, 1.0))
sketch6.addConstraint(Sketcher.Constraint("DistanceY", 3, 3, 17, 3, 11.5))
sketch6.addConstraint(Sketcher.Constraint("DistanceY", 21, 3, 25, 3, 11.5))
sketch6.addConstraint(Sketcher.Constraint("DistanceY", 7, 3, 21, 3, 126.15))
sketch6.addConstraint(Sketcher.Constraint("DistanceX", 1, 3, -1, 1, 163.028299))
sketch6.addConstraint(Sketcher.Constraint("DistanceY", 1, 3, -1, 1, 69.98262))
sketch6.setExpression("Constraints[88]", "Params.sketch6_radius")
sketch6.setExpression("Constraints[89]", "Params.sketch6_height")
sketch6.setExpression("Constraints[90]", "Params.sketch6_radius2")
pocket4 = body.newObject("PartDesign::Pocket", "Pocket003")
pocket4.Profile = sketch6
pocket4.Type = "ThroughAll"
pocket4.Reversed = True

sketch7 = body.newObject("Sketcher::SketchObject", "Sketch006")
sketch7.AttachmentSupport = (doc.getObject("XZ_Plane"), [""])
sketch7.MapMode = "FlatFace"
sketch7.AttachmentOffset = App.Placement(Vector(0, 0, -14.180201), App.Rotation())
add_polygon(sketch7, [(-157.5, 142.7), (-157.5, 144.2), (60.7, 144.2), (60.7, 142.7)])
add_polygon(sketch7, [(-157.5, -107.5), (-157.5, -106), (60.7, -106), (60.7, -107.5)])
sketch7.addConstraint(Sketcher.Constraint("Vertical", 0))
sketch7.addConstraint(Sketcher.Constraint("Horizontal", 1))
sketch7.addConstraint(Sketcher.Constraint("Vertical", 2))
sketch7.addConstraint(Sketcher.Constraint("Horizontal", 3))
sketch7.addConstraint(Sketcher.Constraint("Vertical", 4))
sketch7.addConstraint(Sketcher.Constraint("Horizontal", 5))
sketch7.addConstraint(Sketcher.Constraint("Vertical", 6))
sketch7.addConstraint(Sketcher.Constraint("Horizontal", 7))
sketch7.addConstraint(Sketcher.Constraint("Vertical", 3, 2, 4, 2))
sketch7.addConstraint(Sketcher.Constraint("Vertical", 2, 2, 5, 2))
sketch7.addConstraint(Sketcher.Constraint("Equal", 2, 4))
sketch7.addConstraint(Sketcher.Constraint("DistanceX", 1, 1, 1, 2, 218.2))
sketch7.addConstraint(Sketcher.Constraint("DistanceY", 0, 1, 0, 2, 1.5))
sketch7.addConstraint(Sketcher.Constraint("DistanceY", 4, 2, 3, 2, 248.65))
sketch7.addConstraint(Sketcher.Constraint("DistanceX", 0, 2, -1, 1, 157.528299))
sketch7.addConstraint(Sketcher.Constraint("DistanceY", -1, 1, 0, 2, 144.16738))
sketch7.setExpression("Constraints[19]", "Params.sketch7_width")
sketch7.setExpression("Constraints[20]", "Params.sketch7_height")
pad3 = body.newObject("PartDesign::Pad", "Pad002")
pad3.Profile = sketch7
pad3.setExpression("Length", "Params.pad3_length")

doc.recompute()
